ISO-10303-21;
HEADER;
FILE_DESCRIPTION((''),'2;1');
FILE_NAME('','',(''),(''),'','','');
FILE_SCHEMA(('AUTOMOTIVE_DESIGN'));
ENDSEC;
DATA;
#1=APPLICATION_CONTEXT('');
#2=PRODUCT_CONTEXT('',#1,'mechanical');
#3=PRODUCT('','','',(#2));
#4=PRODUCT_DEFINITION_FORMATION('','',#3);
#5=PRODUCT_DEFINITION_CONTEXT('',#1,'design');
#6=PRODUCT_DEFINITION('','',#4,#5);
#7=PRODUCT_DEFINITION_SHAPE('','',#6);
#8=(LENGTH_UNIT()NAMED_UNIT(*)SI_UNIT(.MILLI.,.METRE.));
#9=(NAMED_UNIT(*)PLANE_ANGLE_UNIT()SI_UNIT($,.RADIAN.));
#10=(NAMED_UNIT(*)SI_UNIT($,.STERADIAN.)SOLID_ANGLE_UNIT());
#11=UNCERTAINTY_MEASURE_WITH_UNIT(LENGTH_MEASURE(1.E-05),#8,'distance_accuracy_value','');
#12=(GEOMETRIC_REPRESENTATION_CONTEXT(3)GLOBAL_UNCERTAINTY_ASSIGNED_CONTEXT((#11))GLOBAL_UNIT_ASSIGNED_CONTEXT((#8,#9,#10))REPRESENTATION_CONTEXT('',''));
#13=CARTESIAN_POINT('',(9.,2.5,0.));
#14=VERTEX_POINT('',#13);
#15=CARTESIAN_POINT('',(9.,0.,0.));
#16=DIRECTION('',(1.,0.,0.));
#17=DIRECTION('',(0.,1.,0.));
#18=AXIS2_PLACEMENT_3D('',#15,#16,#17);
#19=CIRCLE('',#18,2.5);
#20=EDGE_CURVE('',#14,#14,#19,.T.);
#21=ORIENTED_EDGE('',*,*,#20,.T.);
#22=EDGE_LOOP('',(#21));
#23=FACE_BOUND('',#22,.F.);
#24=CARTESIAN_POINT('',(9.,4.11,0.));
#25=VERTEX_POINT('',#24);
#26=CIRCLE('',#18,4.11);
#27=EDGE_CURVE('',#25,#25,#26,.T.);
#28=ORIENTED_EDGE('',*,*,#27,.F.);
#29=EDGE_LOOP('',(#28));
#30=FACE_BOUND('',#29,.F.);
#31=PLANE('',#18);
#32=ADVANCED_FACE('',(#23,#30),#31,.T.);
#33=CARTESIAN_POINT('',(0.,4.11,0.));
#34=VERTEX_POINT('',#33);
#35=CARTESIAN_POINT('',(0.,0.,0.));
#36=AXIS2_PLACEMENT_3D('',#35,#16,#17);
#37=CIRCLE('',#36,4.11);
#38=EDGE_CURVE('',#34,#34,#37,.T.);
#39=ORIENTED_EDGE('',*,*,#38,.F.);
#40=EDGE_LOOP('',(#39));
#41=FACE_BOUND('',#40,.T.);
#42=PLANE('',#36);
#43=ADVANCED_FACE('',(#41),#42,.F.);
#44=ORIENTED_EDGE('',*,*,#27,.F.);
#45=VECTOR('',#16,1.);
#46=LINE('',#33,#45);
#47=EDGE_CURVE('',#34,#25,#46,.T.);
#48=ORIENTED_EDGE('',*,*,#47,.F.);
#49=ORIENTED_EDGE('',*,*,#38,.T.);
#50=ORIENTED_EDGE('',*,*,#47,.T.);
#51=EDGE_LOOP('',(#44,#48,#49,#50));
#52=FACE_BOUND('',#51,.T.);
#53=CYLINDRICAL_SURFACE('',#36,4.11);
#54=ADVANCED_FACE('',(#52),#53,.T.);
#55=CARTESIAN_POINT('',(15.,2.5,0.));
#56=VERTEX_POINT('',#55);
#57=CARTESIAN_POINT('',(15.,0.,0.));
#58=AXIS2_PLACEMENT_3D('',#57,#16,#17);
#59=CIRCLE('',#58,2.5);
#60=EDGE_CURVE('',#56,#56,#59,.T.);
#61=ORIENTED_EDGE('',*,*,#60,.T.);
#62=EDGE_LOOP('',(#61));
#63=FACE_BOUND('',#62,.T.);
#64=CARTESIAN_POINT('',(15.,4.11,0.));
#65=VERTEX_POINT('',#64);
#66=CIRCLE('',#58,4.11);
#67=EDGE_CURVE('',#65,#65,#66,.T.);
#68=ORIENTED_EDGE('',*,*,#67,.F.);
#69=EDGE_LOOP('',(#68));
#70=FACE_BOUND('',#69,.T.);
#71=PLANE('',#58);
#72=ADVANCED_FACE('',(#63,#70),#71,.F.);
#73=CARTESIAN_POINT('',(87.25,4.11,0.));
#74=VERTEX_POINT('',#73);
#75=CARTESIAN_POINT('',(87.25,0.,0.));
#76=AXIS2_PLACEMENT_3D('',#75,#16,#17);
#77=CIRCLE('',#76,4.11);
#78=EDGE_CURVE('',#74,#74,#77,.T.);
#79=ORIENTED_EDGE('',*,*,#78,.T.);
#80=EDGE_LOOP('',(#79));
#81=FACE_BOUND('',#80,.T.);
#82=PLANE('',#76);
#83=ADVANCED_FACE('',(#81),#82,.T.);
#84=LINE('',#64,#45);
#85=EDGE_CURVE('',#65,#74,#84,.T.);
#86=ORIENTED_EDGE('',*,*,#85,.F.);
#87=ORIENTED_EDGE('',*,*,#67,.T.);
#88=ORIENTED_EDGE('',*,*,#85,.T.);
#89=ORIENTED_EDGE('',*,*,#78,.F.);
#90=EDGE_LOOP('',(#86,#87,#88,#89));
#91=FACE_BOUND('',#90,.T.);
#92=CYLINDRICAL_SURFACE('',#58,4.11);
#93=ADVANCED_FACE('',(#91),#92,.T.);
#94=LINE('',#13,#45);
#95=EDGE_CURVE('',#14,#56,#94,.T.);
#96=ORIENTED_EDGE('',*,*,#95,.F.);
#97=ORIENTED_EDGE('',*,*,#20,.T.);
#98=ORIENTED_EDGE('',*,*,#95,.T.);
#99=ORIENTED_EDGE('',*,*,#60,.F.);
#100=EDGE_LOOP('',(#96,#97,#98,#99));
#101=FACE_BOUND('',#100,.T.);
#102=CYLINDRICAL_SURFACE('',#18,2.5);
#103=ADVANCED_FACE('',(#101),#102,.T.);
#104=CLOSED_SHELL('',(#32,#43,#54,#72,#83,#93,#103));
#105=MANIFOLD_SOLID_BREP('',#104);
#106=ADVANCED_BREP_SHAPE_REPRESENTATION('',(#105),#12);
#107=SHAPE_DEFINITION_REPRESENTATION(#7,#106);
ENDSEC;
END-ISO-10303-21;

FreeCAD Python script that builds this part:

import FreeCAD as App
import Part
import Sketcher

doc = App.newDocument("Part")
params = doc.addObject("Spreadsheet::Sheet", "Params")
for row, (alias, value) in enumerate([
    ("sketch1_width", "6 mm"),
    ("sketch1_width2", "9 mm"),
    ("sketch1_height", "4.11 mm"),
    ("sketch1_width3", "87.25 mm"),
    ("sketch1_height2", "1.61 mm"),
    ("revolution_angle", "360 deg"),
], start=1):
    params.set(f"A{row}", alias)
    params.set(f"B{row}", "=" + value)
    params.setAlias(f"B{row}", alias)

body = doc.addObject("PartDesign::Body", "Body")

# Sketch on XY plane
sketch1 = body.newObject("Sketcher::SketchObject", "Sketch")
sketch1.AttachmentSupport = (doc.getObject("XY_Plane"), [""])
sketch1.MapMode = "FlatFace"
sketch1.addGeometry([
    Part.LineSegment(App.Vector(0, 4.1, 0), App.Vector(0, 0, 0)),  # 0
    Part.LineSegment(App.Vector(0, 0, 0), App.Vector(87.2, 0, 0)),  # 1
    Part.LineSegment(App.Vector(87.2, 0, 0), App.Vector(87.2, 4.1, 0)),  # 2
    Part.LineSegment(App.Vector(87.2, 4.1, 0), App.Vector(15, 4.1, 0)),  # 3
    Part.LineSegment(App.Vector(15, 4.1, 0), App.Vector(15, 2.5, 0)),  # 4
    Part.LineSegment(App.Vector(15, 2.5, 0), App.Vector(9, 2.5, 0)),  # 5
    Part.LineSegment(App.Vector(9, 2.5, 0), App.Vector(9, 4.1, 0)),  # 6
    Part.LineSegment(App.Vector(9, 4.1, 0), App.Vector(0, 4.1, 0)),  # 7
], False)
sketch1.addConstraint([
    Sketcher.Constraint("Coincident", 0, 2, 1, 1),
    Sketcher.Constraint("Coincident", 1, 2, 2, 1),
    Sketcher.Constraint("Coincident", 2, 2, 3, 1),
    Sketcher.Constraint("Coincident", 3, 2, 4, 1),
    Sketcher.Constraint("Coincident", 4, 2, 5, 1),
    Sketcher.Constraint("Coincident", 5, 2, 6, 1),
    Sketcher.Constraint("Coincident", 6, 2, 7, 1),
    Sketcher.Constraint("Coincident", 7, 2, 0, 1),
    Sketcher.Constraint("Vertical", 0),
    Sketcher.Constraint("Horizontal", 1),
    Sketcher.Constraint("Vertical", 2),
    Sketcher.Constraint("Horizontal", 3),
    Sketcher.Constraint("Vertical", 4),
    Sketcher.Constraint("Horizontal", 5),
    Sketcher.Constraint("Vertical", 6),
    Sketcher.Constraint("Horizontal", 7),
    Sketcher.Constraint("Coincident", 0, 2, -1, 1),
    Sketcher.Constraint("Horizontal", 3, 2, 6, 2),
    Sketcher.Constraint("DistanceX", 5, 2, 5, 1, 6.0),
    Sketcher.Constraint("DistanceX", 7, 2, 7, 1, 9.0),
    Sketcher.Constraint("DistanceY", 0, 2, 0, 1, 4.11),
    Sketcher.Constraint("DistanceX", 1, 1, 1, 2, 87.25),
    Sketcher.Constraint("DistanceY", 4, 2, 4, 1, 1.61),
])
sketch1.setExpression("Constraints[18]", "Params.sketch1_width")
sketch1.setExpression("Constraints[19]", "Params.sketch1_width2")
sketch1.setExpression("Constraints[20]", "Params.sketch1_height")
sketch1.setExpression("Constraints[21]", "Params.sketch1_width3")
sketch1.setExpression("Constraints[22]", "Params.sketch1_height2")
revolution = body.newObject("PartDesign::Revolution", "Revolution")
revolution.Profile = sketch1
revolution.ReferenceAxis = (sketch1, ["H_Axis"])
revolution.setExpression("Angle", "Params.revolution_angle")

doc.recompute()
